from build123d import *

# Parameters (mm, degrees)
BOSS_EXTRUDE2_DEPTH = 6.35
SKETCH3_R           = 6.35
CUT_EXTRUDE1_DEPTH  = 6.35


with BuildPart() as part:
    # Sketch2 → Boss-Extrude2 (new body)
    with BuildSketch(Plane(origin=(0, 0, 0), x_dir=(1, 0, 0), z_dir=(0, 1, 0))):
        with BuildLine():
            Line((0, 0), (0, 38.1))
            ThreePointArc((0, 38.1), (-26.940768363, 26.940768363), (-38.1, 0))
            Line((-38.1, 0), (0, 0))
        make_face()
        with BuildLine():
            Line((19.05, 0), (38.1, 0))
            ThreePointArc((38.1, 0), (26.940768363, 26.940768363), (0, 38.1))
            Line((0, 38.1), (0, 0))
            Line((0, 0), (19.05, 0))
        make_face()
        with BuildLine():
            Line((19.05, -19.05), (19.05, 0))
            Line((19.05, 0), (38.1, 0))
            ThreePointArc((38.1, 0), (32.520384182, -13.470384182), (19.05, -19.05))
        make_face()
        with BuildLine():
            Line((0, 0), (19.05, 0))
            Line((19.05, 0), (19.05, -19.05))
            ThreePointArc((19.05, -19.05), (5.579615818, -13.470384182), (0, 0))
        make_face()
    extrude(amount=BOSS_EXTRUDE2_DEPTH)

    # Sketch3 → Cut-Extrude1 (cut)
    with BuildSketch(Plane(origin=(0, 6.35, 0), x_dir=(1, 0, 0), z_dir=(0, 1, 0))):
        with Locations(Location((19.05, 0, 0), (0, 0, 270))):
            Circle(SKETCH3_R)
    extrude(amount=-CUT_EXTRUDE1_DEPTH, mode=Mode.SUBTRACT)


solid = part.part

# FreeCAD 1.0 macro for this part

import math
import FreeCAD as App
import Part
import Sketcher
from FreeCAD import Vector
Q = App.Units.Quantity

doc = App.newDocument("Part")
params = doc.addObject("Spreadsheet::Sheet", "Params")
for row, (alias, value) in enumerate([
    ("sketch1_radius", "1.5 in"),
    ("pad1_length", "0.25 in"),
    ("sketch2_diameter", "0.5 in"),
    ("pocket1_length", "0.25 in"),
], start=1):
    params.set(f"A{row}", alias)
    params.set(f"B{row}", "=" + value)
    params.setAlias(f"B{row}", alias)

body = doc.addObject("PartDesign::Body", "Body")

sketch1 = body.newObject("Sketcher::SketchObject", "Sketch")
sketch1.AttachmentSupport = (doc.getObject("XZ_Plane"), [""])
sketch1.MapMode = "FlatFace"
sketch1.addGeometry(Part.ArcOfCircle(Part.Circle(Vector(0, 0, 0), Vector(0, 0, 1), 38), math.radians(-180), math.radians(-90)), False)
sketch1.addGeometry(Part.LineSegment(Vector(-38, 0, 0), Vector(0, 0, 0)), False)
sketch1.addGeometry(Part.ArcOfCircle(Part.Circle(Vector(19, 0, 0), Vector(0, 0, 1), 19), math.radians(90), math.radians(180)), False)
sketch1.addGeometry(Part.ArcOfCircle(Part.Circle(Vector(19, 0, 0), Vector(0, 0, 1), 19), math.radians(0), math.radians(90)), False)
sketch1.addGeometry(Part.ArcOfCircle(Part.Circle(Vector(0, 0, 0), Vector(0, 0, 1), 38), math.radians(-90), math.radians(0)), False)
sketch1.addConstraint(Sketcher.Constraint("Coincident", 0, 1, 1, 1))
sketch1.addConstraint(Sketcher.Constraint("Coincident", 1, 2, 2, 2))
sketch1.addConstraint(Sketcher.Constraint("Tangent", 2, 1, 3, 2))
sketch1.addConstraint(Sketcher.Constraint("Tangent", 3, 1, 4, 2))
sketch1.addConstraint(Sketcher.Constraint("Tangent", 4, 1, 0, 2))
sketch1.addConstraint(Sketcher.Constraint("Horizontal", 1))
sketch1.addConstraint(Sketcher.Constraint("Coincident", 0, 3, -1, 1))
sketch1.addConstraint(Sketcher.Constraint("Coincident", 1, 2, -1, 1))
sketch1.addConstraint(Sketcher.Constraint("Equal", 2, 3))
sketch1.addConstraint(Sketcher.Constraint("Equal", 0, 4))
sketch1.addConstraint(Sketcher.Constraint("PointOnObject", 2, 3, -1))
sketch1.addConstraint(Sketcher.Constraint("PointOnObject", 4, 1, -2))
sketch1.addConstraint(Sketcher.Constraint("Vertical", 3, 3, 2, 1))
sketch1.addConstraint(Sketcher.Constraint("Radius", 0, Q("1.5 in")))
sketch1.setExpression("Constraints[13]", "Params.sketch1_radius")
pad1 = body.newObject("PartDesign::Pad", "Pad")
pad1.Profile = sketch1
pad1.setExpression("Length", "Params.pad1_length")
pad1.Reversed = True

sketch2 = body.newObject("Sketcher::SketchObject", "Sketch001")
sketch2.AttachmentSupport = (doc.getObject("XZ_Plane"), [""])
sketch2.MapMode = "FlatFace"
sketch2.AttachmentOffset = App.Placement(Vector(0, 0, -0.25 * 25.4), App.Rotation())
sketch2.addGeometry(Part.Circle(Vector(19, 0, 0), Vector(0, 0, 1), 6), False)
sketch2.addConstraint(Sketcher.Constraint("PointOnObject", 0, 3, -1))
sketch2.addConstraint(Sketcher.Constraint("Diameter", 0, Q("0.5 in")))
sketch2.addConstraint(Sketcher.Constraint("DistanceX", -1, 1, 0, 3, Q("0.75 in")))
sketch2.setExpression("Constraints[1]", "Params.sketch2_diameter")
pocket1 = body.newObject("PartDesign::Pocket", "Pocket")
pocket1.Profile = sketch2
pocket1.setExpression("Length", "Params.pocket1_length")
pocket1.Reversed = True

doc.recompute()
